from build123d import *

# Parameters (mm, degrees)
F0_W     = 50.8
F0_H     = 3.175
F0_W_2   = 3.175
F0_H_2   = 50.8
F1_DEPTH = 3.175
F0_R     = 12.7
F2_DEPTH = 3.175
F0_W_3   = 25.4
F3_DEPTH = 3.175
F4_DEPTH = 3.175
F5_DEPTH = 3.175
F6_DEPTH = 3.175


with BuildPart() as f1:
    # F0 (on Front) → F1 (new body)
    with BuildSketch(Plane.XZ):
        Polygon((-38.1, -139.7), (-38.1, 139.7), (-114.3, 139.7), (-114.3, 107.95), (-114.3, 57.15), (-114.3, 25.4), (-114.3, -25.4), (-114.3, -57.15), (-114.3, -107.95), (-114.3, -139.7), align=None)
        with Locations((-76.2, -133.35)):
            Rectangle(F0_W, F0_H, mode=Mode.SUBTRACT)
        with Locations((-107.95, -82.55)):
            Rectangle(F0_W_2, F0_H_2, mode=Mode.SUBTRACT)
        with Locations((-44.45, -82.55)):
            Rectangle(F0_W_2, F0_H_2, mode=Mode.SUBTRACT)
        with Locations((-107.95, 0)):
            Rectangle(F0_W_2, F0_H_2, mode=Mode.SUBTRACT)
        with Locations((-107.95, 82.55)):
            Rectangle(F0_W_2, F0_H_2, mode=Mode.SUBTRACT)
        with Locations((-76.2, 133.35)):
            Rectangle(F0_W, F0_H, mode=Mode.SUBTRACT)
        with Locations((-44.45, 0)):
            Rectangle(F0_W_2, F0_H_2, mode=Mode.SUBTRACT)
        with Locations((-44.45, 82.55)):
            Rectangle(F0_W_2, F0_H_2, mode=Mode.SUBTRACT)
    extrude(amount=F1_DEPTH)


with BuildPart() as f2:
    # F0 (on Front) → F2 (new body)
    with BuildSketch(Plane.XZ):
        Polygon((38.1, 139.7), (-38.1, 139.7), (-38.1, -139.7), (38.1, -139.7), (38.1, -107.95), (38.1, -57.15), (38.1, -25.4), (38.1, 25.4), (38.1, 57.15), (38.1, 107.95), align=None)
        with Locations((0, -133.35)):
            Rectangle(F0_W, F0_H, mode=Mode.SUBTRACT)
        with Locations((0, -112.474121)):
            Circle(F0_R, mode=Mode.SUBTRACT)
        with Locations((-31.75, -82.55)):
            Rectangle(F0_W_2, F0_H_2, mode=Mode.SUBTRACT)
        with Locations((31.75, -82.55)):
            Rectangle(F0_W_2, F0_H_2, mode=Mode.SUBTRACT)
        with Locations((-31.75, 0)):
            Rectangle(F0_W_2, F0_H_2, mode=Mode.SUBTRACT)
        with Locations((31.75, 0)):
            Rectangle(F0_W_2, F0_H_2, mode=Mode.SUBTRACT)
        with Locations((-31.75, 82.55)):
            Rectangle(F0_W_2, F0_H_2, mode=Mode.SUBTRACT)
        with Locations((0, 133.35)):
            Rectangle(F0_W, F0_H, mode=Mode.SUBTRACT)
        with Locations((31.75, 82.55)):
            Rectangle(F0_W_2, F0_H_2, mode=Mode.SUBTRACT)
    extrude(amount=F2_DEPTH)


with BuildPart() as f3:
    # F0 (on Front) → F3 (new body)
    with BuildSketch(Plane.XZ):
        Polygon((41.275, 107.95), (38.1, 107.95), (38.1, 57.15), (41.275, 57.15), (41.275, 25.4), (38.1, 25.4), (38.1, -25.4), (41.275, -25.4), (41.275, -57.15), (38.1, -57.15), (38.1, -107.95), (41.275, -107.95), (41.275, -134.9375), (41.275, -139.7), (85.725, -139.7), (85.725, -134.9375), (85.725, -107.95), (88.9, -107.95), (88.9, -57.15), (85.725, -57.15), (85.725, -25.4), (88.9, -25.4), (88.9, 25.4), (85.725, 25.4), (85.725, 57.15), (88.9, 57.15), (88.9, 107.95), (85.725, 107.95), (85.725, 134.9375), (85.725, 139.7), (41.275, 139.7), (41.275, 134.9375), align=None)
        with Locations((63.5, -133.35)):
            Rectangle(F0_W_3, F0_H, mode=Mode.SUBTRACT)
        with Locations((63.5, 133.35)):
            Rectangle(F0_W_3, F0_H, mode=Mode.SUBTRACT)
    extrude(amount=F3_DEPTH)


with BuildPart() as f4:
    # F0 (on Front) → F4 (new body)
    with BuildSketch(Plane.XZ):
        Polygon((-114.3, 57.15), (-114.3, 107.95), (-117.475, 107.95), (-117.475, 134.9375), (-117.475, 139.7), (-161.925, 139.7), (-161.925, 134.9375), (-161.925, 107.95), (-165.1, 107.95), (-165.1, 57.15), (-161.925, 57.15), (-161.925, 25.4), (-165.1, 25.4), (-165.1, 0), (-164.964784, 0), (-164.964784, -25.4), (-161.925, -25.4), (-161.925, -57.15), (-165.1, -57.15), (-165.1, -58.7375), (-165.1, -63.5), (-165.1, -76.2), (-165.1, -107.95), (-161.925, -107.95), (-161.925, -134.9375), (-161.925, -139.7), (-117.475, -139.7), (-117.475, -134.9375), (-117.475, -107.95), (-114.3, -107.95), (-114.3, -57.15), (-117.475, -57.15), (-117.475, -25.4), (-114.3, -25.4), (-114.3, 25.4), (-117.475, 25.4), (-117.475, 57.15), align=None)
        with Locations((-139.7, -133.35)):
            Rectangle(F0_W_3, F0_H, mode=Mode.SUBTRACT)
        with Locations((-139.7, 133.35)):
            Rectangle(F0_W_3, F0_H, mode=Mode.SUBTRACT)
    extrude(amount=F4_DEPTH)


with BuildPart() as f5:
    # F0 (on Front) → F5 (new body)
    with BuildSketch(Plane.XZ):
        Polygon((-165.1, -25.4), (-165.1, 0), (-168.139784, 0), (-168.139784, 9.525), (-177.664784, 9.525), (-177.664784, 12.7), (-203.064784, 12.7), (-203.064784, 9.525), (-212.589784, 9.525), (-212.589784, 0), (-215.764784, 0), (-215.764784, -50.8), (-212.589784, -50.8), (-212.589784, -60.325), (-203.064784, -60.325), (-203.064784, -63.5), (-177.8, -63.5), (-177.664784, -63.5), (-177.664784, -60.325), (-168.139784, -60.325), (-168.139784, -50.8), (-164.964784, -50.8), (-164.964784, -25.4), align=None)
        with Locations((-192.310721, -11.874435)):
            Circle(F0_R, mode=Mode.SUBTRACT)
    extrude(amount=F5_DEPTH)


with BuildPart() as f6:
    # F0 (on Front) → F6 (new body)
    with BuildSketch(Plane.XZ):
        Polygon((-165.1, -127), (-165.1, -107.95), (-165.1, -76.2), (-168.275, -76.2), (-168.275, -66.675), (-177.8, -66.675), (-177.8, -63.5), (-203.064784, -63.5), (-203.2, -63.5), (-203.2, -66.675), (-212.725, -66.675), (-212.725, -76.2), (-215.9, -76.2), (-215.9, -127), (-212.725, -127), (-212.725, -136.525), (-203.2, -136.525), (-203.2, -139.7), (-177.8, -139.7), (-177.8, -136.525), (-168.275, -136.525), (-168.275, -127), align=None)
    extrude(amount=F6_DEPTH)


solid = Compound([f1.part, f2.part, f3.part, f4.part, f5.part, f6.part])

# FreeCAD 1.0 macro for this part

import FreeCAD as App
import Part
import Sketcher
Q = App.Units.Quantity


def add_polygon(sketch, points):
    """Adds a closed chain of lines whose ends are joined by coincident constraints."""
    first, n = sketch.GeometryCount, len(points)
    for a, b in zip(points, points[1:] + points[:1]):
        sketch.addGeometry(Part.LineSegment(App.Vector(*a, 0), App.Vector(*b, 0)), False)
    for i in range(n):
        sketch.addConstraint(Sketcher.Constraint("Coincident", first + i, 2, first + (i + 1) % n, 1))

doc = App.newDocument("Part")
body = doc.addObject("PartDesign::Body", "Body")

# Sketch on XZ plane
sketch1 = body.newObject("Sketcher::SketchObject", "Sketch")
sketch1.AttachmentSupport = (doc.getObject("XZ_Plane"), [""])
sketch1.MapMode = "FlatFace"
add_polygon(sketch1, [(-38.1, -139.7), (-38.1, 139.7), (-114.3, 139.7), (-114.3, -139.7)])  # lines 0-3
add_polygon(sketch1, [(-106.4, -108), (-109.5, -108), (-109.5, -57.1), (-106.4, -57.1)])  # lines 4-7
add_polygon(sketch1, [(-50.8, -134.9), (-101.6, -134.9), (-101.6, -131.8), (-50.8, -131.8)])  # lines 8-11
add_polygon(sketch1, [(-42.9, -108), (-46, -108), (-46, -57.1), (-42.9, -57.1)])  # lines 12-15
add_polygon(sketch1, [(-106.4, -25.4), (-109.5, -25.4), (-109.5, 25.4), (-106.4, 25.4)])  # lines 16-19
add_polygon(sketch1, [(-106.4, 57.1), (-109.5, 57.1), (-109.5, 108), (-106.4, 108)])  # lines 20-23
add_polygon(sketch1, [(-42.9, -25.4), (-46, -25.4), (-46, 25.4), (-42.9, 25.4)])  # lines 24-27
add_polygon(sketch1, [(-50.8, 131.8), (-101.6, 131.8), (-101.6, 134.9), (-50.8, 134.9)])  # lines 28-31
add_polygon(sketch1, [(-42.9, 57.1), (-46, 57.1), (-46, 108), (-42.9, 108)])  # lines 32-35
sketch1.addConstraint([
    Sketcher.Constraint("Vertical", 0),
    Sketcher.Constraint("Horizontal", 1),
    Sketcher.Constraint("Vertical", 2),
    Sketcher.Constraint("Horizontal", 3),
    Sketcher.Constraint("Horizontal", 4),
    Sketcher.Constraint("Vertical", 5),
    Sketcher.Constraint("Horizontal", 6),
    Sketcher.Constraint("Vertical", 7),
    Sketcher.Constraint("Horizontal", 8),
    Sketcher.Constraint("Vertical", 9),
    Sketcher.Constraint("Horizontal", 10),
    Sketcher.Constraint("Vertical", 11),
    Sketcher.Constraint("Horizontal", 12),
    Sketcher.Constraint("Vertical", 13),
    Sketcher.Constraint("Horizontal", 14),
    Sketcher.Constraint("Vertical", 15),
    Sketcher.Constraint("Horizontal", 16),
    Sketcher.Constraint("Vertical", 17),
    Sketcher.Constraint("Horizontal", 18),
    Sketcher.Constraint("Vertical", 19),
    Sketcher.Constraint("Horizontal", 20),
    Sketcher.Constraint("Vertical", 21),
    Sketcher.Constraint("Horizontal", 22),
    Sketcher.Constraint("Vertical", 23),
    Sketcher.Constraint("Horizontal", 24),
    Sketcher.Constraint("Vertical", 25),
    Sketcher.Constraint("Horizontal", 26),
    Sketcher.Constraint("Vertical", 27),
    Sketcher.Constraint("Horizontal", 28),
    Sketcher.Constraint("Vertical", 29),
    Sketcher.Constraint("Horizontal", 30),
    Sketcher.Constraint("Vertical", 31),
    Sketcher.Constraint("Horizontal", 32),
    Sketcher.Constraint("Vertical", 33),
    Sketcher.Constraint("Horizontal", 34),
    Sketcher.Constraint("Vertical", 35),
    Sketcher.Constraint("Symmetric", 5, 2, 20, 2, -1),
    Sketcher.Constraint("Symmetric", 7, 2, 22, 2, -1),
    Sketcher.Constraint("Symmetric", 9, 2, 28, 2, -1),
    Sketcher.Constraint("Symmetric", 11, 2, 30, 2, -1),
    Sketcher.Constraint("Symmetric", 13, 2, 32, 2, -1),
    Sketcher.Constraint("Symmetric", 15, 2, 34, 2, -1),
    Sketcher.Constraint("Horizontal", 7, 2, 12, 2),
    Sketcher.Constraint("Horizontal", 6, 2, 13, 2),
    Sketcher.Constraint("Horizontal", 19, 2, 24, 2),
    Sketcher.Constraint("Horizontal", 18, 2, 25, 2),
    Sketcher.Constraint("Vertical", 5, 2, 16, 2),
    Sketcher.Constraint("Vertical", 7, 2, 18, 2),
    Sketcher.Constraint("Vertical", 13, 2, 24, 2),
    Sketcher.Constraint("Vertical", 15, 2, 26, 2),
    Sketcher.Constraint("Equal", 6, 12),
    Sketcher.Constraint("Equal", 30, 5),
    Sketcher.Constraint("Equal", 34, 9),
    Sketcher.Constraint("Equal", 15, 17),
    Sketcher.Constraint("DistanceX", 1, 2, 1, 1, Q("3 in")),
    Sketcher.Constraint("DistanceX", 8, 2, 8, 1, Q("2 in")),
    Sketcher.Constraint("DistanceY", 0, 1, 0, 2, Q("11 in")),
    Sketcher.Constraint("DistanceX", 8, 2, -1, 1, Q("4 in")),
    Sketcher.Constraint("DistanceY", 16, 2, -1, 1, Q("1 in")),
    Sketcher.Constraint("DistanceX", 0, 2, -1, 1, Q("1.5 in")),
    Sketcher.Constraint("DistanceY", -1, 1, 0, 2, Q("5.5 in")),
    Sketcher.Constraint("DistanceX", 5, 2, 13, 2, Q("2.5 in")),
    Sketcher.Constraint("DistanceX", 4, 2, 4, 1, Q("0.125 in")),
    Sketcher.Constraint("DistanceY", 4, 2, -1, 1, Q("4.25 in")),
    Sketcher.Constraint("DistanceX", 4, 2, -1, 1, Q("4.3125 in")),
    Sketcher.Constraint("DistanceY", 8, 2, -1, 1, Q("5.3125 in")),
])
pad1 = body.newObject("PartDesign::Pad", "Pad")
pad1.Profile = sketch1
pad1.Length = Q("0.125 in")
body2 = doc.addObject("PartDesign::Body", "Body001")

# Sketch on XZ plane
sketch2 = body2.newObject("Sketcher::SketchObject", "Sketch001")
sketch2.AttachmentSupport = (doc.getObject("XZ_Plane001"), [""])
sketch2.MapMode = "FlatFace"
add_polygon(sketch2, [(38.1, 139.7), (-38.1, 139.7), (-38.1, -139.7), (38.1, -139.7)])  # lines 0-3
add_polygon(sketch2, [(-30.2, -108), (-33.3, -108), (-33.3, -57.1), (-30.2, -57.1)])  # lines 4-7
sketch2.addGeometry(Part.Circle(App.Vector(0, -112.5, 0), App.Vector(0, 0, 1), 12.7), False)  # 8
add_polygon(sketch2, [(25.4, -134.9), (-25.4, -134.9), (-25.4, -131.8), (25.4, -131.8)])  # lines 9-12
add_polygon(sketch2, [(33.3, -108), (30.2, -108), (30.2, -57.1), (33.3, -57.1)])  # lines 13-16
add_polygon(sketch2, [(-30.2, -25.4), (-33.3, -25.4), (-33.3, 25.4), (-30.2, 25.4)])  # lines 17-20
add_polygon(sketch2, [(-30.2, 57.1), (-33.3, 57.1), (-33.3, 108), (-30.2, 108)])  # lines 21-24
add_polygon(sketch2, [(33.3, -25.4), (30.2, -25.4), (30.2, 25.4), (33.3, 25.4)])  # lines 25-28
add_polygon(sketch2, [(25.4, 131.8), (-25.4, 131.8), (-25.4, 134.9), (25.4, 134.9)])  # lines 29-32
add_polygon(sketch2, [(33.3, 57.1), (30.2, 57.1), (30.2, 108), (33.3, 108)])  # lines 33-36
sketch2.addConstraint([
    Sketcher.Constraint("Horizontal", 0),
    Sketcher.Constraint("Vertical", 1),
    Sketcher.Constraint("Horizontal", 2),
    Sketcher.Constraint("Vertical", 3),
    Sketcher.Constraint("Horizontal", 4),
    Sketcher.Constraint("Vertical", 5),
    Sketcher.Constraint("Horizontal", 6),
    Sketcher.Constraint("Vertical", 7),
    Sketcher.Constraint("Horizontal", 9),
    Sketcher.Constraint("Vertical", 10),
    Sketcher.Constraint("Horizontal", 11),
    Sketcher.Constraint("Vertical", 12),
    Sketcher.Constraint("Horizontal", 13),
    Sketcher.Constraint("Vertical", 14),
    Sketcher.Constraint("Horizontal", 15),
    Sketcher.Constraint("Vertical", 16),
    Sketcher.Constraint("Horizontal", 17),
    Sketcher.Constraint("Vertical", 18),
    Sketcher.Constraint("Horizontal", 19),
    Sketcher.Constraint("Vertical", 20),
    Sketcher.Constraint("Horizontal", 21),
    Sketcher.Constraint("Vertical", 22),
    Sketcher.Constraint("Horizontal", 23),
    Sketcher.Constraint("Vertical", 24),
    Sketcher.Constraint("Horizontal", 25),
    Sketcher.Constraint("Vertical", 26),
    Sketcher.Constraint("Horizontal", 27),
    Sketcher.Constraint("Vertical", 28),
    Sketcher.Constraint("Horizontal", 29),
    Sketcher.Constraint("Vertical", 30),
    Sketcher.Constraint("Horizontal", 31),
    Sketcher.Constraint("Vertical", 32),
    Sketcher.Constraint("Horizontal", 33),
    Sketcher.Constraint("Vertical", 34),
    Sketcher.Constraint("Horizontal", 35),
    Sketcher.Constraint("Vertical", 36),
    Sketcher.Constraint("Symmetric", 0, 2, 2, 2, -1, 1),
    Sketcher.Constraint("Symmetric", 15, 2, 21, 2, -1, 1),
    Sketcher.Constraint("Symmetric", 13, 2, 23, 2, -1, 1),
    Sketcher.Constraint("Symmetric", 19, 2, 25, 2, -1, 1),
    Sketcher.Constraint("Symmetric", 17, 2, 27, 2, -1, 1),
    Sketcher.Constraint("Symmetric", 11, 2, 29, 2, -1, 1),
    Sketcher.Constraint("Symmetric", 9, 2, 31, 2, -1, 1),
    Sketcher.Constraint("Symmetric", 6, 2, 33, 2, -1, 1),
    Sketcher.Constraint("Symmetric", 4, 2, 35, 2, -1, 1),
    Sketcher.Constraint("Symmetric", 7, 2, 13, 2, -2),
    Sketcher.Constraint("Symmetric", 5, 2, 15, 2, -2),
    Sketcher.Constraint("PointOnObject", 8, 3, -2),
    Sketcher.Constraint("Horizontal", 20, 2, 25, 2),
    Sketcher.Constraint("Vertical", 5, 2, 17, 2),
    Sketcher.Constraint("Vertical", 7, 2, 19, 2),
    Sketcher.Constraint("Vertical", 10, 2, 29, 2),
    Sketcher.Constraint("Equal", 31, 5),
    Sketcher.Constraint("Equal", 35, 10),
    Sketcher.Constraint("Equal", 16, 18),
    Sketcher.Constraint("Diameter", 8, Q("1 in")),
    Sketcher.Constraint("DistanceX", 0, 2, 0, 1, Q("3 in")),
    Sketcher.Constraint("DistanceX", 9, 2, 9, 1, Q("2 in")),
    Sketcher.Constraint("DistanceY", 1, 2, 1, 1, Q("11 in")),
    Sketcher.Constraint("DistanceX", 5, 2, 14, 2, Q("2.5 in")),
    Sketcher.Constraint("DistanceX", 4, 2, 4, 1, Q("0.125 in")),
    Sketcher.Constraint("DistanceY", 4, 2, -1, 1, Q("4.25 in")),
    Sketcher.Constraint("DistanceY", 9, 2, -1, 1, Q("5.3125 in")),
    Sketcher.Constraint("DistanceY", 8, 3, -1, 1, Q("112.474121 mm")),
])
pad2 = body2.newObject("PartDesign::Pad", "Pad001")
pad2.Profile = sketch2
pad2.Length = Q("0.125 in")
body3 = doc.addObject("PartDesign::Body", "Body002")

# Sketch on XZ plane
sketch3 = body3.newObject("Sketcher::SketchObject", "Sketch002")
sketch3.AttachmentSupport = (doc.getObject("XZ_Plane002"), [""])
sketch3.MapMode = "FlatFace"
add_polygon(sketch3, [(41.3, 108), (38.1, 108), (38.1, 57.1), (41.3, 57.1), (41.3, 25.4), (38.1, 25.4), (38.1, -25.4), (41.3, -25.4), (41.3, -57.1), (38.1, -57.1), (38.1, -108), (41.3, -108), (41.3, -139.7), (85.7, -139.7), (85.7, -108), (88.9, -108), (88.9, -57.1), (85.7, -57.1), (85.7, -25.4), (88.9, -25.4), (88.9, 25.4), (85.7, 25.4), (85.7, 57.1), (88.9, 57.1), (88.9, 108), (85.7, 108), (85.7, 139.7), (41.3, 139.7)])  # lines 0-27
add_polygon(sketch3, [(76.2, -134.9), (50.8, -134.9), (50.8, -131.8), (76.2, -131.8)])  # lines 28-31
add_polygon(sketch3, [(76.2, 131.8), (50.8, 131.8), (50.8, 134.9), (76.2, 134.9)])  # lines 32-35
sketch3.addConstraint([
    Sketcher.Constraint("Horizontal", 0),
    Sketcher.Constraint("Vertical", 1),
    Sketcher.Constraint("Horizontal", 2),
    Sketcher.Constraint("Vertical", 3),
    Sketcher.Constraint("Horizontal", 4),
    Sketcher.Constraint("Vertical", 5),
    Sketcher.Constraint("Horizontal", 6),
    Sketcher.Constraint("Vertical", 7),
    Sketcher.Constraint("Horizontal", 8),
    Sketcher.Constraint("Vertical", 9),
    Sketcher.Constraint("Horizontal", 10),
    Sketcher.Constraint("Vertical", 11),
    Sketcher.Constraint("Horizontal", 12),
    Sketcher.Constraint("Vertical", 13),
    Sketcher.Constraint("Horizontal", 14),
    Sketcher.Constraint("Vertical", 15),
    Sketcher.Constraint("Horizontal", 16),
    Sketcher.Constraint("Vertical", 17),
    Sketcher.Constraint("Horizontal", 18),
    Sketcher.Constraint("Vertical", 19),
    Sketcher.Constraint("Horizontal", 20),
    Sketcher.Constraint("Vertical", 21),
    Sketcher.Constraint("Horizontal", 22),
    Sketcher.Constraint("Vertical", 23),
    Sketcher.Constraint("Horizontal", 24),
    Sketcher.Constraint("Vertical", 25),
    Sketcher.Constraint("Horizontal", 26),
    Sketcher.Constraint("Vertical", 27),
    Sketcher.Constraint("Horizontal", 28),
    Sketcher.Constraint("Vertical", 29),
    Sketcher.Constraint("Horizontal", 30),
    Sketcher.Constraint("Vertical", 31),
    Sketcher.Constraint("Horizontal", 32),
    Sketcher.Constraint("Vertical", 33),
    Sketcher.Constraint("Horizontal", 34),
    Sketcher.Constraint("Vertical", 35),
    Sketcher.Constraint("Symmetric", 3, 2, 6, 2, -1),
    Sketcher.Constraint("Symmetric", 1, 2, 8, 2, -1),
    Sketcher.Constraint("Symmetric", 17, 2, 20, 2, -1),
    Sketcher.Constraint("Symmetric", 15, 2, 22, 2, -1),
    Sketcher.Constraint("Symmetric", 13, 2, 24, 2, -1),
    Sketcher.Constraint("Symmetric", 11, 2, 26, 2, -1),
    Sketcher.Constraint("Symmetric", 29, 2, 32, 2, -1),
    Sketcher.Constraint("Symmetric", 31, 2, 34, 2, -1),
    Sketcher.Constraint("Horizontal", 10, 2, 13, 2),
    Sketcher.Constraint("Horizontal", 8, 2, 15, 2),
    Sketcher.Constraint("Horizontal", 6, 2, 17, 2),
    Sketcher.Constraint("Horizontal", 0, 2, 23, 2),
    Sketcher.Constraint("Vertical", 1, 2, 4, 2),
    Sketcher.Constraint("Vertical", 7, 2, 10, 2),
    Sketcher.Constraint("Vertical", 13, 2, 16, 2),
    Sketcher.Constraint("Vertical", 15, 2, 18, 2),
    Sketcher.Constraint("Equal", 10, 14),
    Sketcher.Constraint("Equal", 1, 5),
    Sketcher.Constraint("Equal", 7, 11),
    Sketcher.Constraint("Equal", 24, 29),
    Sketcher.Constraint("DistanceX", 28, 2, 28, 1, Q("1 in")),
    Sketcher.Constraint("DistanceY", 1, 2, 1, 1, Q("2 in")),
    Sketcher.Constraint("DistanceX", -1, 1, 28, 2, Q("2 in")),
    Sketcher.Constraint("DistanceX", 9, 2, 14, 2, Q("2 in")),
    Sketcher.Constraint("DistanceX", 12, 1, 12, 2, Q("1.75 in")),
    Sketcher.Constraint("DistanceY", 3, 2, 3, 1, Q("1.25 in")),
    Sketcher.Constraint("DistanceX", -1, 1, 0, 2, Q("1.5 in")),
    Sketcher.Constraint("DistanceY", 28, 2, -1, 1, Q("5.3125 in")),
])
pad3 = body3.newObject("PartDesign::Pad", "Pad002")
pad3.Profile = sketch3
pad3.Length = Q("0.125 in")
body4 = doc.addObject("PartDesign::Body", "Body003")

# Sketch on XZ plane
sketch4 = body4.newObject("Sketcher::SketchObject", "Sketch003")
sketch4.AttachmentSupport = (doc.getObject("XZ_Plane003"), [""])
sketch4.MapMode = "FlatFace"
add_polygon(sketch4, [(-114.3, 57.15), (-114.3, 107.95), (-117.47, 107.95), (-117.47, 139.7), (-161.93, 139.7), (-161.93, 107.95), (-165.1, 107.95), (-165.1, 57.15), (-161.93, 57.15), (-161.93, 25.4), (-165.1, 25.4), (-165.1, 0), (-164.96, 0), (-164.96, -25.4), (-161.93, -25.4), (-161.93, -57.15), (-165.1, -57.15), (-165.1, -107.95), (-161.93, -107.95), (-161.93, -139.7), (-117.47, -139.7), (-117.47, -107.95), (-114.3, -107.95), (-114.3, -57.15), (-117.47, -57.15), (-117.47, -25.4), (-114.3, -25.4), (-114.3, 25.4), (-117.47, 25.4), (-117.47, 57.15)])  # lines 0-29
add_polygon(sketch4, [(-127, -134.94), (-152.4, -134.94), (-152.4, -131.76), (-127, -131.76)])  # lines 30-33
add_polygon(sketch4, [(-127, 131.76), (-152.4, 131.76), (-152.4, 134.94), (-127, 134.94)])  # lines 34-37
sketch4.addConstraint([
    Sketcher.Constraint("Vertical", 0),
    Sketcher.Constraint("Horizontal", 1),
    Sketcher.Constraint("Vertical", 2),
    Sketcher.Constraint("Horizontal", 3),
    Sketcher.Constraint("Vertical", 4),
    Sketcher.Constraint("Horizontal", 5),
    Sketcher.Constraint("Vertical", 6),
    Sketcher.Constraint("Horizontal", 7),
    Sketcher.Constraint("Vertical", 8),
    Sketcher.Constraint("Horizontal", 9),
    Sketcher.Constraint("Vertical", 10),
    Sketcher.Constraint("Horizontal", 11),
    Sketcher.Constraint("Vertical", 12),
    Sketcher.Constraint("Horizontal", 13),
    Sketcher.Constraint("Vertical", 14),
    Sketcher.Constraint("Horizontal", 15),
    Sketcher.Constraint("Vertical", 16),
    Sketcher.Constraint("Horizontal", 17),
    Sketcher.Constraint("Vertical", 18),
    Sketcher.Constraint("Horizontal", 19),
    Sketcher.Constraint("Vertical", 20),
    Sketcher.Constraint("Horizontal", 21),
    Sketcher.Constraint("Vertical", 22),
    Sketcher.Constraint("Horizontal", 23),
    Sketcher.Constraint("Vertical", 24),
    Sketcher.Constraint("Horizontal", 25),
    Sketcher.Constraint("Vertical", 26),
    Sketcher.Constraint("Horizontal", 27),
    Sketcher.Constraint("Vertical", 28),
    Sketcher.Constraint("Horizontal", 29),
    Sketcher.Constraint("Horizontal", 30),
    Sketcher.Constraint("Vertical", 31),
    Sketcher.Constraint("Horizontal", 32),
    Sketcher.Constraint("Vertical", 33),
    Sketcher.Constraint("Horizontal", 34),
    Sketcher.Constraint("Vertical", 35),
    Sketcher.Constraint("Horizontal", 36),
    Sketcher.Constraint("Vertical", 37),
    Sketcher.Constraint("Symmetric", 8, 2, 13, 2, -1),
    Sketcher.Constraint("Symmetric", 6, 2, 15, 2, -1),
    Sketcher.Constraint("Symmetric", 4, 2, 17, 2, -1),
    Sketcher.Constraint("Symmetric", 2, 2, 19, 2, -1),
    Sketcher.Constraint("Symmetric", 0, 2, 21, 2, -1),
    Sketcher.Constraint("Symmetric", 24, 2, 27, 2, -1),
    Sketcher.Constraint("Symmetric", 31, 2, 34, 2, -1),
    Sketcher.Constraint("Symmetric", 33, 2, 36, 2, -1),
    Sketcher.Constraint("PointOnObject", 10, 2, -1),
    Sketcher.Constraint("Horizontal", 1, 2, 4, 2),
    Sketcher.Constraint("Horizontal", 15, 2, 22, 2),
    Sketcher.Constraint("Horizontal", 13, 2, 24, 2),
    Sketcher.Constraint("Horizontal", 7, 2, 28, 2),
    Sketcher.Constraint("Vertical", 4, 2, 7, 2),
    Sketcher.Constraint("Vertical", 6, 2, 9, 2),
    Sketcher.Constraint("Vertical", 20, 2, 23, 2),
    Sketcher.Constraint("Vertical", 22, 2, 25, 2),
    Sketcher.Constraint("Equal", 1, 5),
    Sketcher.Constraint("Equal", 4, 8),
    Sketcher.Constraint("Equal", 36, 10),
    Sketcher.Constraint("Equal", 22, 26),
    Sketcher.Constraint("Equal", 29, 31),
    Sketcher.Constraint("DistanceX", 30, 2, 30, 1, Q("1 in")),
    Sketcher.Constraint("DistanceX", 30, 2, -1, 1, Q("6 in")),
    Sketcher.Constraint("DistanceX", 5, 2, 0, 2, Q("2 in")),
    Sketcher.Constraint("DistanceX", 3, 2, 3, 1, Q("1.75 in")),
    Sketcher.Constraint("DistanceY", 2, 1, 2, 2, Q("1.25 in")),
    Sketcher.Constraint("DistanceX", 0, 2, -1, 1, Q("4.5 in")),
    Sketcher.Constraint("DistanceY", 30, 2, -1, 1, Q("5.3125 in")),
    Sketcher.Constraint("DistanceX", 11, 1, 11, 2, Q("0.135216 mm")),
])
pad4 = body4.newObject("PartDesign::Pad", "Pad003")
pad4.Profile = sketch4
pad4.Length = Q("0.125 in")
body5 = doc.addObject("PartDesign::Body", "Body004")

# Sketch on XZ plane
sketch5 = body5.newObject("Sketcher::SketchObject", "Sketch004")
sketch5.AttachmentSupport = (doc.getObject("XZ_Plane004"), [""])
sketch5.MapMode = "FlatFace"
add_polygon(sketch5, [(-165.1, -25.4), (-165.1, 0), (-168.14, 0), (-168.14, 9.53), (-177.66, 9.53), (-177.66, 12.7), (-203.06, 12.7), (-203.06, 9.53), (-212.59, 9.53), (-212.59, 0), (-215.76, 0), (-215.76, -50.8), (-212.59, -50.8), (-212.59, -60.33), (-203.06, -60.33), (-203.06, -63.5), (-177.66, -63.5), (-177.66, -60.33), (-168.14, -60.33), (-168.14, -50.8), (-164.96, -50.8), (-164.96, -25.4)])  # lines 0-21
sketch5.addGeometry(Part.Circle(App.Vector(-192.31, -11.87, 0), App.Vector(0, 0, 1), 12.7), False)  # 22
sketch5.addConstraint([
    Sketcher.Constraint("Vertical", 0),
    Sketcher.Constraint("Horizontal", 1),
    Sketcher.Constraint("Vertical", 2),
    Sketcher.Constraint("Horizontal", 3),
    Sketcher.Constraint("Vertical", 4),
    Sketcher.Constraint("Horizontal", 5),
    Sketcher.Constraint("Vertical", 6),
    Sketcher.Constraint("Horizontal", 7),
    Sketcher.Constraint("Vertical", 8),
    Sketcher.Constraint("Horizontal", 9),
    Sketcher.Constraint("Vertical", 10),
    Sketcher.Constraint("Horizontal", 11),
    Sketcher.Constraint("Vertical", 12),
    Sketcher.Constraint("Horizontal", 13),
    Sketcher.Constraint("Vertical", 14),
    Sketcher.Constraint("Horizontal", 15),
    Sketcher.Constraint("Vertical", 16),
    Sketcher.Constraint("Horizontal", 17),
    Sketcher.Constraint("Vertical", 18),
    Sketcher.Constraint("Horizontal", 19),
    Sketcher.Constraint("Vertical", 20),
    Sketcher.Constraint("Horizontal", 21),
    Sketcher.Constraint("PointOnObject", 0, 2, -1),
    Sketcher.Constraint("PointOnObject", 8, 2, -1),
    Sketcher.Constraint("Horizontal", 3, 2, 6, 2),
    Sketcher.Constraint("Horizontal", 13, 2, 16, 2),
    Sketcher.Constraint("Horizontal", 11, 2, 18, 2),
    Sketcher.Constraint("Vertical", 8, 2, 11, 2),
    Sketcher.Constraint("Vertical", 6, 2, 13, 2),
    Sketcher.Constraint("Vertical", 4, 2, 15, 2),
    Sketcher.Constraint("Vertical", 2, 2, 17, 2),
    Sketcher.Constraint("Equal", 3, 7),
    Sketcher.Constraint("Equal", 11, 19),
    Sketcher.Constraint("Equal", 15, 0),
    Sketcher.Constraint("Equal", 17, 2),
    Sketcher.Constraint("Equal", 19, 4),
    Sketcher.Constraint("Equal", 8, 12),
    Sketcher.Constraint("Equal", 6, 14),
    Sketcher.Constraint("Equal", 0, 20),
    Sketcher.Constraint("Diameter", 22, Q("1 in")),
    Sketcher.Constraint("DistanceX", 5, 2, 5, 1, Q("1 in")),
    Sketcher.Constraint("DistanceX", 0, 2, -1, 1, Q("6.5 in")),
    Sketcher.Constraint("DistanceY", -1, 1, 4, 2, Q("0.5 in")),
    Sketcher.Constraint("DistanceX", 3, 2, 3, 1, Q("0.375 in")),
    Sketcher.Constraint("DistanceX", 1, 2, 1, 1, Q("3.039784 mm")),
    Sketcher.Constraint("DistanceX", 22, 3, -1, 1, Q("192.310721 mm")),
    Sketcher.Constraint("DistanceY", 22, 3, -1, 1, Q("11.874435 mm")),
])
pad5 = body5.newObject("PartDesign::Pad", "Pad004")
pad5.Profile = sketch5
pad5.Length = Q("0.125 in")
body6 = doc.addObject("PartDesign::Body", "Body005")

# Sketch on XZ plane
sketch6 = body6.newObject("Sketcher::SketchObject", "Sketch005")
sketch6.AttachmentSupport = (doc.getObject("XZ_Plane005"), [""])
sketch6.MapMode = "FlatFace"
add_polygon(sketch6, [(-165.1, -127), (-165.1, -76.2), (-168.3, -76.2), (-168.3, -66.7), (-177.8, -66.7), (-177.8, -63.5), (-203.2, -63.5), (-203.2, -66.7), (-212.7, -66.7), (-212.7, -76.2), (-215.9, -76.2), (-215.9, -127), (-212.7, -127), (-212.7, -136.5), (-203.2, -136.5), (-203.2, -139.7), (-177.8, -139.7), (-177.8, -136.5), (-168.3, -136.5), (-168.3, -127)])  # lines 0-19
sketch6.addConstraint([
    Sketcher.Constraint("Vertical", 0),
    Sketcher.Constraint("Horizontal", 1),
    Sketcher.Constraint("Vertical", 2),
    Sketcher.Constraint("Horizontal", 3),
    Sketcher.Constraint("Vertical", 4),
    Sketcher.Constraint("Horizontal", 5),
    Sketcher.Constraint("Vertical", 6),
    Sketcher.Constraint("Horizontal", 7),
    Sketcher.Constraint("Vertical", 8),
    Sketcher.Constraint("Horizontal", 9),
    Sketcher.Constraint("Vertical", 10),
    Sketcher.Constraint("Horizontal", 11),
    Sketcher.Constraint("Vertical", 12),
    Sketcher.Constraint("Horizontal", 13),
    Sketcher.Constraint("Vertical", 14),
    Sketcher.Constraint("Horizontal", 15),
    Sketcher.Constraint("Vertical", 16),
    Sketcher.Constraint("Horizontal", 17),
    Sketcher.Constraint("Vertical", 18),
    Sketcher.Constraint("Horizontal", 19),
    Sketcher.Constraint("Horizontal", 3, 2, 6, 2),
    Sketcher.Constraint("Horizontal", 1, 2, 8, 2),
    Sketcher.Constraint("Horizontal", 13, 2, 16, 2),
    Sketcher.Constraint("Horizontal", 11, 2, 18, 2),
    Sketcher.Constraint("Vertical", 8, 2, 11, 2),
    Sketcher.Constraint("Vertical", 6, 2, 13, 2),
    Sketcher.Constraint("Vertical", 4, 2, 15, 2),
    Sketcher.Constraint("Vertical", 2, 2, 17, 2),
    Sketcher.Constraint("Equal", 3, 7),
    Sketcher.Constraint("Equal", 1, 9),
    Sketcher.Constraint("Equal", 17, 2),
    Sketcher.Constraint("Equal", 19, 4),
    Sketcher.Constraint("Equal", 8, 12),
    Sketcher.Constraint("Equal", 6, 14),
    Sketcher.Constraint("DistanceX", 5, 2, 5, 1, Q("1 in")),
    Sketcher.Constraint("DistanceY", 0, 1, 0, 2, Q("2 in")),
    Sketcher.Constraint("DistanceY", 0, 2, -1, 1, Q("3 in")),
    Sketcher.Constraint("DistanceX", 3, 2, -1, 1, Q("7 in")),
    Sketcher.Constraint("DistanceX", 0, 2, -1, 1, Q("6.5 in")),
    Sketcher.Constraint("DistanceX", 1, 2, 1, 1, Q("0.125 in")),
])
pad6 = body6.newObject("PartDesign::Pad", "Pad005")
pad6.Profile = sketch6
pad6.Length = Q("0.125 in")

doc.recompute()
